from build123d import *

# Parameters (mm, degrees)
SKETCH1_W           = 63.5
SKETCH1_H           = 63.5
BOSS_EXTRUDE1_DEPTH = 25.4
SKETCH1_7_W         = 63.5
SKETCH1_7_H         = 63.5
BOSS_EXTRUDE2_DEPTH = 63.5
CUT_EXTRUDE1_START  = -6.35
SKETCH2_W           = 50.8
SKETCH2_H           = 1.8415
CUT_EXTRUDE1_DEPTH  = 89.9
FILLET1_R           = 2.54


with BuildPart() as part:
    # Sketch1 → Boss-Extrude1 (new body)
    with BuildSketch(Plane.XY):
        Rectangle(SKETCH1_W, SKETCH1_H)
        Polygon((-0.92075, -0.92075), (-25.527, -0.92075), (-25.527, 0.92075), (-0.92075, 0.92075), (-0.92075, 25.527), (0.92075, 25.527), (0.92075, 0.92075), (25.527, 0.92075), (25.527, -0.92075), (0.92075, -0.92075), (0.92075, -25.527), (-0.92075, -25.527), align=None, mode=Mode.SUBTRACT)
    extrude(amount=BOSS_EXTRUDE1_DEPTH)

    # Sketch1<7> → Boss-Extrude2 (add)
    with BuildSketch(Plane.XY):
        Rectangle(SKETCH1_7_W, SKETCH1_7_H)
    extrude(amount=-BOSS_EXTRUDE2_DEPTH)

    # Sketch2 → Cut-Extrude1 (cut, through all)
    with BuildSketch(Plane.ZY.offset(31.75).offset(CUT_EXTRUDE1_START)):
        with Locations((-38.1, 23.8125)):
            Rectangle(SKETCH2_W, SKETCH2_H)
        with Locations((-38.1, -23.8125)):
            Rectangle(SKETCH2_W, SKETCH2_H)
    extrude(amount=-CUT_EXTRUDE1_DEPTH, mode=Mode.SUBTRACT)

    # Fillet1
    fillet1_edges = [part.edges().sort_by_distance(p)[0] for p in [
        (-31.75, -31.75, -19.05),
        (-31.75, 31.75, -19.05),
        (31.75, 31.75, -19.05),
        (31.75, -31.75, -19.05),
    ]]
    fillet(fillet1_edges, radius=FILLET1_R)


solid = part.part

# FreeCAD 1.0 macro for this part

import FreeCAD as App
import Part
import Sketcher
from FreeCAD import Vector
Q = App.Units.Quantity


def edges_at(feature, points):
    """Names of the edges that pass closest to the given points."""
    edges = feature.Shape.Edges
    near = lambda p: min(range(len(edges)), key=lambda i: edges[i].distToShape(Part.Vertex(*p))[0])
    return sorted({f"Edge{near(p) + 1}" for p in points})

doc = App.newDocument("Part")
body = doc.addObject("PartDesign::Body", "Body")

# Sketch on XY plane
sketch1 = body.newObject("Sketcher::SketchObject", "Sketch")
sketch1.AttachmentSupport = (doc.getObject("XY_Plane"), [""])
sketch1.MapMode = "FlatFace"
sketch1.addGeometry(Part.LineSegment(Vector(-31.8, 31.8, 0), Vector(-31.8, -31.8, 0)), False)
sketch1.addGeometry(Part.LineSegment(Vector(-31.8, -31.8, 0), Vector(31.8, -31.8, 0)), False)
sketch1.addGeometry(Part.LineSegment(Vector(31.8, -31.8, 0), Vector(31.8, 31.8, 0)), False)
sketch1.addGeometry(Part.LineSegment(Vector(31.8, 31.8, 0), Vector(-31.8, 31.8, 0)), False)
sketch1.addGeometry(Part.LineSegment(Vector(-0.9, -25.5, 0), Vector(-0.9, -0.9, 0)), False)
sketch1.addGeometry(Part.LineSegment(Vector(-0.9, -0.9, 0), Vector(-25.5, -0.9, 0)), False)
sketch1.addGeometry(Part.LineSegment(Vector(-25.5, -0.9, 0), Vector(-25.5, 0.9, 0)), False)
sketch1.addGeometry(Part.LineSegment(Vector(-25.5, 0.9, 0), Vector(-0.9, 0.9, 0)), False)
sketch1.addGeometry(Part.LineSegment(Vector(-0.9, 0.9, 0), Vector(-0.9, 25.5, 0)), False)
sketch1.addGeometry(Part.LineSegment(Vector(-0.9, 25.5, 0), Vector(0.9, 25.5, 0)), False)
sketch1.addGeometry(Part.LineSegment(Vector(0.9, 25.5, 0), Vector(0.9, 0.9, 0)), False)
sketch1.addGeometry(Part.LineSegment(Vector(0.9, 0.9, 0), Vector(25.5, 0.9, 0)), False)
sketch1.addGeometry(Part.LineSegment(Vector(25.5, 0.9, 0), Vector(25.5, -0.9, 0)), False)
sketch1.addGeometry(Part.LineSegment(Vector(25.5, -0.9, 0), Vector(0.9, -0.9, 0)), False)
sketch1.addGeometry(Part.LineSegment(Vector(0.9, -0.9, 0), Vector(0.9, -25.5, 0)), False)
sketch1.addGeometry(Part.LineSegment(Vector(0.9, -25.5, 0), Vector(-0.9, -25.5, 0)), False)
sketch1.addConstraint(Sketcher.Constraint("Coincident", 0, 2, 1, 1))
sketch1.addConstraint(Sketcher.Constraint("Coincident", 1, 2, 2, 1))
sketch1.addConstraint(Sketcher.Constraint("Coincident", 2, 2, 3, 1))
sketch1.addConstraint(Sketcher.Constraint("Coincident", 3, 2, 0, 1))
sketch1.addConstraint(Sketcher.Constraint("Coincident", 4, 2, 5, 1))
sketch1.addConstraint(Sketcher.Constraint("Coincident", 5, 2, 6, 1))
sketch1.addConstraint(Sketcher.Constraint("Coincident", 6, 2, 7, 1))
sketch1.addConstraint(Sketcher.Constraint("Coincident", 7, 2, 8, 1))
sketch1.addConstraint(Sketcher.Constraint("Coincident", 8, 2, 9, 1))
sketch1.addConstraint(Sketcher.Constraint("Coincident", 9, 2, 10, 1))
sketch1.addConstraint(Sketcher.Constraint("Coincident", 10, 2, 11, 1))
sketch1.addConstraint(Sketcher.Constraint("Coincident", 11, 2, 12, 1))
sketch1.addConstraint(Sketcher.Constraint("Coincident", 12, 2, 13, 1))
sketch1.addConstraint(Sketcher.Constraint("Coincident", 13, 2, 14, 1))
sketch1.addConstraint(Sketcher.Constraint("Coincident", 14, 2, 15, 1))
sketch1.addConstraint(Sketcher.Constraint("Coincident", 15, 2, 4, 1))
sketch1.addConstraint(Sketcher.Constraint("Vertical", 0))
sketch1.addConstraint(Sketcher.Constraint("Horizontal", 1))
sketch1.addConstraint(Sketcher.Constraint("Vertical", 2))
sketch1.addConstraint(Sketcher.Constraint("Horizontal", 3))
sketch1.addConstraint(Sketcher.Constraint("Vertical", 4))
sketch1.addConstraint(Sketcher.Constraint("Horizontal", 5))
sketch1.addConstraint(Sketcher.Constraint("Vertical", 6))
sketch1.addConstraint(Sketcher.Constraint("Horizontal", 7))
sketch1.addConstraint(Sketcher.Constraint("Vertical", 8))
sketch1.addConstraint(Sketcher.Constraint("Horizontal", 9))
sketch1.addConstraint(Sketcher.Constraint("Vertical", 10))
sketch1.addConstraint(Sketcher.Constraint("Horizontal", 11))
sketch1.addConstraint(Sketcher.Constraint("Vertical", 12))
sketch1.addConstraint(Sketcher.Constraint("Horizontal", 13))
sketch1.addConstraint(Sketcher.Constraint("Vertical", 14))
sketch1.addConstraint(Sketcher.Constraint("Horizontal", 15))
sketch1.addConstraint(Sketcher.Constraint("Symmetric", 0, 2, 2, 2, -1, 1))
sketch1.addConstraint(Sketcher.Constraint("Symmetric", 4, 2, 10, 2, -1, 1))
sketch1.addConstraint(Sketcher.Constraint("Symmetric", 6, 2, 12, 2, -1, 1))
sketch1.addConstraint(Sketcher.Constraint("Symmetric", 8, 2, 14, 2, -1, 1))
sketch1.addConstraint(Sketcher.Constraint("Symmetric", 7, 2, 10, 2, -2))
sketch1.addConstraint(Sketcher.Constraint("Equal", 3, 0))
sketch1.addConstraint(Sketcher.Constraint("Equal", 13, 4))
sketch1.addConstraint(Sketcher.Constraint("Equal", 15, 6))
sketch1.addConstraint(Sketcher.Constraint("DistanceX", 1, 1, 1, 2, Q("2.5 in")))
sketch1.addConstraint(Sketcher.Constraint("DistanceX", 5, 2, 5, 1, Q("0.96875 in")))
sketch1.addConstraint(Sketcher.Constraint("DistanceX", 9, 1, 9, 2, Q("0.0725 in")))
pad1 = body.newObject("PartDesign::Pad", "Pad")
pad1.Profile = sketch1
pad1.Length = Q("1 in")

# Sketch on XY plane
sketch2 = body.newObject("Sketcher::SketchObject", "Sketch001")
sketch2.AttachmentSupport = (doc.getObject("XY_Plane"), [""])
sketch2.MapMode = "FlatFace"
sketch2.addGeometry(Part.LineSegment(Vector(-32, 32, 0), Vector(-32, -32, 0)), False)
sketch2.addGeometry(Part.LineSegment(Vector(-32, -32, 0), Vector(32, -32, 0)), False)
sketch2.addGeometry(Part.LineSegment(Vector(32, -32, 0), Vector(32, 32, 0)), False)
sketch2.addGeometry(Part.LineSegment(Vector(32, 32, 0), Vector(-32, 32, 0)), False)
sketch2.addConstraint(Sketcher.Constraint("Coincident", 0, 2, 1, 1))
sketch2.addConstraint(Sketcher.Constraint("Coincident", 1, 2, 2, 1))
sketch2.addConstraint(Sketcher.Constraint("Coincident", 2, 2, 3, 1))
sketch2.addConstraint(Sketcher.Constraint("Coincident", 3, 2, 0, 1))
sketch2.addConstraint(Sketcher.Constraint("Vertical", 0))
sketch2.addConstraint(Sketcher.Constraint("Horizontal", 1))
sketch2.addConstraint(Sketcher.Constraint("Vertical", 2))
sketch2.addConstraint(Sketcher.Constraint("Horizontal", 3))
sketch2.addConstraint(Sketcher.Constraint("Symmetric", 0, 2, 2, 2, -1, 1))
sketch2.addConstraint(Sketcher.Constraint("Equal", 3, 0))
sketch2.addConstraint(Sketcher.Constraint("DistanceX", 1, 1, 1, 2, Q("2.5 in")))
pad2 = body.newObject("PartDesign::Pad", "Pad001")
pad2.Profile = sketch2
pad2.Length = Q("2.5 in")
pad2.Reversed = True

# Sketch on YZ plane
sketch3 = body.newObject("Sketcher::SketchObject", "Sketch002")
sketch3.AttachmentSupport = (doc.getObject("YZ_Plane"), [""])
sketch3.MapMode = "FlatFace"
sketch3.AttachmentOffset = App.Placement(Vector(0, 0, -1 * 25.4), App.Rotation())
sketch3.addGeometry(Part.LineSegment(Vector(24.7, -63.5, 0), Vector(22.9, -63.5, 0)), False)
sketch3.addGeometry(Part.LineSegment(Vector(22.9, -63.5, 0), Vector(22.9, -12.7, 0)), False)
sketch3.addGeometry(Part.LineSegment(Vector(22.9, -12.7, 0), Vector(24.7, -12.7, 0)), False)
sketch3.addGeometry(Part.LineSegment(Vector(24.7, -12.7, 0), Vector(24.7, -63.5, 0)), False)
sketch3.addGeometry(Part.LineSegment(Vector(-22.9, -63.5, 0), Vector(-24.7, -63.5, 0)), False)
sketch3.addGeometry(Part.LineSegment(Vector(-24.7, -63.5, 0), Vector(-24.7, -12.7, 0)), False)
sketch3.addGeometry(Part.LineSegment(Vector(-24.7, -12.7, 0), Vector(-22.9, -12.7, 0)), False)
sketch3.addGeometry(Part.LineSegment(Vector(-22.9, -12.7, 0), Vector(-22.9, -63.5, 0)), False)
sketch3.addConstraint(Sketcher.Constraint("Coincident", 0, 2, 1, 1))
sketch3.addConstraint(Sketcher.Constraint("Coincident", 1, 2, 2, 1))
sketch3.addConstraint(Sketcher.Constraint("Coincident", 2, 2, 3, 1))
sketch3.addConstraint(Sketcher.Constraint("Coincident", 3, 2, 0, 1))
sketch3.addConstraint(Sketcher.Constraint("Coincident", 4, 2, 5, 1))
sketch3.addConstraint(Sketcher.Constraint("Coincident", 5, 2, 6, 1))
sketch3.addConstraint(Sketcher.Constraint("Coincident", 6, 2, 7, 1))
sketch3.addConstraint(Sketcher.Constraint("Coincident", 7, 2, 4, 1))
sketch3.addConstraint(Sketcher.Constraint("Horizontal", 0))
sketch3.addConstraint(Sketcher.Constraint("Vertical", 1))
sketch3.addConstraint(Sketcher.Constraint("Horizontal", 2))
sketch3.addConstraint(Sketcher.Constraint("Vertical", 3))
sketch3.addConstraint(Sketcher.Constraint("Horizontal", 4))
sketch3.addConstraint(Sketcher.Constraint("Vertical", 5))
sketch3.addConstraint(Sketcher.Constraint("Horizontal", 6))
sketch3.addConstraint(Sketcher.Constraint("Vertical", 7))
sketch3.addConstraint(Sketcher.Constraint("Symmetric", 3, 2, 4, 2, -2))
sketch3.addConstraint(Sketcher.Constraint("Symmetric", 1, 2, 6, 2, -2))
sketch3.addConstraint(Sketcher.Constraint("DistanceY", 1, 1, 1, 2, Q("2 in")))
sketch3.addConstraint(Sketcher.Constraint("DistanceY", 0, 2, -1, 1, Q("2.5 in")))
sketch3.addConstraint(Sketcher.Constraint("DistanceX", 0, 2, 0, 1, Q("0.0725 in")))
sketch3.addConstraint(Sketcher.Constraint("DistanceX", 4, 2, 0, 2, Q("1.875 in")))
pocket1 = body.newObject("PartDesign::Pocket", "Pocket")
pocket1.Profile = sketch3
pocket1.Type = "ThroughAll"
pocket1.Reversed = True
doc.recompute()

fillet = body.newObject("PartDesign::Fillet", "Fillet")
fillet.Base = (pocket1, edges_at(pocket1, [
    (-31.75, -31.75, -19.05),
    (-31.75, 31.75, -19.05),
    (31.75, 31.75, -19.05),
    (31.75, -31.75, -19.05),
]))
fillet.Radius = Q("0.1 in")

doc.recompute()
